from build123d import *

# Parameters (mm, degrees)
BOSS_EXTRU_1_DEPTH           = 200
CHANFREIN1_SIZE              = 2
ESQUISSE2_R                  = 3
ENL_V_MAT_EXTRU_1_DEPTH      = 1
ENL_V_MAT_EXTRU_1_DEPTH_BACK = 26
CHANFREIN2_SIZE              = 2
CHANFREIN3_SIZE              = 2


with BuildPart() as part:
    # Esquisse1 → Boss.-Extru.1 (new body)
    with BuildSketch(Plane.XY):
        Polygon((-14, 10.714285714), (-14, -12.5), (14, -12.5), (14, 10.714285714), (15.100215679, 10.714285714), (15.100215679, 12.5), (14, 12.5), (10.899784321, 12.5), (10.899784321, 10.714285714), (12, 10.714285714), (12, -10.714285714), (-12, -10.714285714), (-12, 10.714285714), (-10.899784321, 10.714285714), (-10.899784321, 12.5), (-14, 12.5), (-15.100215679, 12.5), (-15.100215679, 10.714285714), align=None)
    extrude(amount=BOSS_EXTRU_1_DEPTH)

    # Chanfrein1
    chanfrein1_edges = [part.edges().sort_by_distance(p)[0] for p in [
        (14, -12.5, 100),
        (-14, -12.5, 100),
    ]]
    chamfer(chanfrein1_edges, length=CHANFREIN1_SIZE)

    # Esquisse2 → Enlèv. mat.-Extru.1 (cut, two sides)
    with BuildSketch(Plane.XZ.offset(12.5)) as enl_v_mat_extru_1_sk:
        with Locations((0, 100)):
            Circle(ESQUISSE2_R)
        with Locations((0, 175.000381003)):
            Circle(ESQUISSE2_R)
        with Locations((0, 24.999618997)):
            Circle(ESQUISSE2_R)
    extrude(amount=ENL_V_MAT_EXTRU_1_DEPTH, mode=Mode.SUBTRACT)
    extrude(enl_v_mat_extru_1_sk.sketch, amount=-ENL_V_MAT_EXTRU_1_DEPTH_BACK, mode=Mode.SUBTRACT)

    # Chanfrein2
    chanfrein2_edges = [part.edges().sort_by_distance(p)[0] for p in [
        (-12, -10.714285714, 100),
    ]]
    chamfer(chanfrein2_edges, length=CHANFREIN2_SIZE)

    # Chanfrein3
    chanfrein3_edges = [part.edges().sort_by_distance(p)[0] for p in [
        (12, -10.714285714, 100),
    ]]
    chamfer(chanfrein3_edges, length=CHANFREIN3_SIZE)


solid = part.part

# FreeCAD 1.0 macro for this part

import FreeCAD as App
import Part
import Sketcher
from FreeCAD import Vector
Q = App.Units.Quantity


def edges_at(feature, points):
    """Names of the edges that pass closest to the given points."""
    edges = feature.Shape.Edges
    near = lambda p: min(range(len(edges)), key=lambda i: edges[i].distToShape(Part.Vertex(*p))[0])
    return sorted({f"Edge{near(p) + 1}" for p in points})


def add_polygon(sketch, points):
    """Adds a closed chain of lines whose ends are joined by coincident constraints."""
    first, n = sketch.GeometryCount, len(points)
    for a, b in zip(points, points[1:] + points[:1]):
        sketch.addGeometry(Part.LineSegment(App.Vector(*a, 0), App.Vector(*b, 0)), False)
    for i in range(n):
        sketch.addConstraint(Sketcher.Constraint("Coincident", first + i, 2, first + (i + 1) % n, 1))

doc = App.newDocument("Part")
body = doc.addObject("PartDesign::Body", "Body")

sketch1 = body.newObject("Sketcher::SketchObject", "Sketch")
sketch1.AttachmentSupport = (doc.getObject("XY_Plane"), [""])
sketch1.MapMode = "FlatFace"
add_polygon(sketch1, [(-14, 10.714286), (-14, -12.5), (14, -12.5), (14, 10.714286), (15.100216, 10.714286), (15.100216, 12.5), (10.899784, 12.5), (10.899784, 10.714286), (12, 10.714286), (12, -10.714286), (-12, -10.714286), (-12, 10.714286), (-10.899784, 10.714286), (-10.899784, 12.5), (-15.100216, 12.5), (-15.100216, 10.714286)])
sketch1.addConstraint([
    Sketcher.Constraint("Vertical", 0),
    Sketcher.Constraint("Horizontal", 1),
    Sketcher.Constraint("Vertical", 2),
    Sketcher.Constraint("Horizontal", 3),
    Sketcher.Constraint("Vertical", 4),
    Sketcher.Constraint("Horizontal", 5),
    Sketcher.Constraint("Vertical", 6),
    Sketcher.Constraint("Horizontal", 7),
    Sketcher.Constraint("Vertical", 8),
    Sketcher.Constraint("Horizontal", 9),
    Sketcher.Constraint("Vertical", 10),
    Sketcher.Constraint("Horizontal", 11),
    Sketcher.Constraint("Vertical", 12),
    Sketcher.Constraint("Horizontal", 13),
    Sketcher.Constraint("Vertical", 14),
    Sketcher.Constraint("Horizontal", 15),
    Sketcher.Constraint("Symmetric", 7, 2, 9, 2, -1, 1),
    Sketcher.Constraint("Symmetric", 6, 2, 11, 2, -2),
    Sketcher.Constraint("Symmetric", 4, 2, 13, 2, -2),
    Sketcher.Constraint("Symmetric", 2, 2, 15, 2, -2),
    Sketcher.Constraint("Horizontal", 3, 2, 6, 2),
    Sketcher.Constraint("Equal", 3, 7),
    Sketcher.Constraint("DistanceX", 1, 1, 1, 2, Q("28 mm")),
    Sketcher.Constraint("DistanceX", 9, 2, 9, 1, Q("24 mm")),
    Sketcher.Constraint("DistanceY", 1, 2, 4, 2, Q("25 mm")),
    Sketcher.Constraint("DistanceY", 0, 2, -1, 1, Q("12.5 mm")),
    Sketcher.Constraint("DistanceX", 5, 2, 5, 1, Q("4.200431 mm")),
    Sketcher.Constraint("DistanceY", 8, 2, 8, 1, Q("21.428571 mm")),
])
pad1 = body.newObject("PartDesign::Pad", "Pad")
pad1.Profile = sketch1
pad1.Length = 200
doc.recompute()

chamfer = body.newObject("PartDesign::Chamfer", "Chamfer")
chamfer.Base = (pad1, edges_at(pad1, [(14, -12.5, 100), (-14, -12.5, 100)]))
chamfer.Size = 2

sketch2 = body.newObject("Sketcher::SketchObject", "Sketch001")
sketch2.AttachmentSupport = (doc.getObject("XZ_Plane"), [""])
sketch2.MapMode = "FlatFace"
sketch2.AttachmentOffset = App.Placement(Vector(0, 0, 12.5), App.Rotation())
sketch2.addGeometry([
    Part.Circle(Vector(0, 100, 0), Vector(0, 0, 1), 3),
    Part.Circle(Vector(0, 175.000381, 0), Vector(0, 0, 1), 3),
    Part.Circle(Vector(0, 24.999619, 0), Vector(0, 0, 1), 3),
], False)
sketch2.addConstraint([
    Sketcher.Constraint("Equal", 0, 1),
    Sketcher.Constraint("Equal", 1, 2),
    Sketcher.Constraint("PointOnObject", 0, 3, -2),
    Sketcher.Constraint("PointOnObject", 1, 3, -2),
    Sketcher.Constraint("PointOnObject", 2, 3, -2),
    Sketcher.Constraint("Diameter", 0, Q("6 mm")),
    Sketcher.Constraint("DistanceY", -1, 1, 0, 3, Q("100 mm")),
    Sketcher.Constraint("DistanceY", -1, 1, 1, 3, Q("175.000381 mm")),
    Sketcher.Constraint("DistanceY", -1, 1, 2, 3, Q("24.999619 mm")),
])
pocket1 = body.newObject("PartDesign::Pocket", "Pocket")
pocket1.Profile = sketch2
pocket1.Type = "ThroughAll"
pocket1.Midplane = True
doc.recompute()

chamfer2 = body.newObject("PartDesign::Chamfer", "Chamfer001")
chamfer2.Base = (pocket1, edges_at(pocket1, [(-12, -10.714, 100)]))
chamfer2.Size = 2
doc.recompute()

chamfer3 = body.newObject("PartDesign::Chamfer", "Chamfer002")
chamfer3.Base = (chamfer2, edges_at(chamfer2, [(12, -10.714, 100)]))
chamfer3.Size = 2

doc.recompute()
